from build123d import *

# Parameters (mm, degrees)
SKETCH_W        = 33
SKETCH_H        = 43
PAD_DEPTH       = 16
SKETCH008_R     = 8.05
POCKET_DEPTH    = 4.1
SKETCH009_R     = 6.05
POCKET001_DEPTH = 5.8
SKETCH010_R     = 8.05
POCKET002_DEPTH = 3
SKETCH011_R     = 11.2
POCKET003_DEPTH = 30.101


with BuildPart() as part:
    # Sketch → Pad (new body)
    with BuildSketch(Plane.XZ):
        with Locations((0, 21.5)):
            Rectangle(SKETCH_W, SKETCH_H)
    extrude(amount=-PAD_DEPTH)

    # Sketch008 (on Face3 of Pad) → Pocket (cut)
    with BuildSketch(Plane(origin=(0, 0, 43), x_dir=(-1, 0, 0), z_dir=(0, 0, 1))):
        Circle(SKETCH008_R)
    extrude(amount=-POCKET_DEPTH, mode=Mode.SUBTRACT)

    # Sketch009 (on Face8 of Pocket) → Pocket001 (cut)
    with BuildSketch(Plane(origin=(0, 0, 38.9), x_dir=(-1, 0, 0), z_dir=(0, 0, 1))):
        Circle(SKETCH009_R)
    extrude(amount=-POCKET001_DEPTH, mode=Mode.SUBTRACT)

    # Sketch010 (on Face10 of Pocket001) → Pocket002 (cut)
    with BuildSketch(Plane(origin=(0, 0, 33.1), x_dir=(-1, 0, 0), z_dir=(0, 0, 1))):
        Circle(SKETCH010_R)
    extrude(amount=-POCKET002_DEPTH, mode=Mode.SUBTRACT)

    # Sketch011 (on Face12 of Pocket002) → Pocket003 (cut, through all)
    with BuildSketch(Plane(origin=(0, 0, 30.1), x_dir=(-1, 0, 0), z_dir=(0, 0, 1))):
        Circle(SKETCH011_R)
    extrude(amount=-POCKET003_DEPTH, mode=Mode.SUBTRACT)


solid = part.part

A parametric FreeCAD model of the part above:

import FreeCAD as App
import Part
import Sketcher


def add_polygon(sketch, points):
    """Adds a closed chain of lines whose ends are joined by coincident constraints."""
    first, n = sketch.GeometryCount, len(points)
    for a, b in zip(points, points[1:] + points[:1]):
        sketch.addGeometry(Part.LineSegment(App.Vector(*a, 0), App.Vector(*b, 0)), False)
    for i in range(n):
        sketch.addConstraint(Sketcher.Constraint("Coincident", first + i, 2, first + (i + 1) % n, 1))

doc = App.newDocument("Part")
body = doc.addObject("PartDesign::Body", "Body")

sketch1 = body.newObject("Sketcher::SketchObject", "Sketch")
sketch1.AttachmentSupport = (doc.getObject("XZ_Plane"), [""])
sketch1.MapMode = "FlatFace"
add_polygon(sketch1, [(-16.5, 43), (-16.5, 0), (16.5, 0), (16.5, 43)])
sketch1.addConstraint(Sketcher.Constraint("Vertical", 0))
sketch1.addConstraint(Sketcher.Constraint("Horizontal", 1))
sketch1.addConstraint(Sketcher.Constraint("Vertical", 2))
sketch1.addConstraint(Sketcher.Constraint("Horizontal", 3))
sketch1.addConstraint(Sketcher.Constraint("Symmetric", 0, 2, 1, 2, -1, 1))
sketch1.addConstraint(Sketcher.Constraint("DistanceX", 1, 1, 1, 2, 33.0))
sketch1.addConstraint(Sketcher.Constraint("DistanceY", 0, 2, 0, 1, 43.0))
pad1 = body.newObject("PartDesign::Pad", "Pad")
pad1.Profile = sketch1
pad1.Length = 16
pad1.Reversed = True

sketch2 = body.newObject("Sketcher::SketchObject", "Sketch001")
sketch2.AttachmentSupport = (doc.getObject("XY_Plane"), [""])
sketch2.MapMode = "FlatFace"
sketch2.AttachmentOffset = App.Placement(App.Vector(0, 0, 43), App.Rotation())
sketch2.addGeometry(Part.Circle(App.Vector(0, 0, 0), App.Vector(0, 0, 1), 8.05), False)
sketch2.addConstraint(Sketcher.Constraint("Coincident", 0, 3, -1, 1))
sketch2.addConstraint(Sketcher.Constraint("Diameter", 0, 16.1))
pocket1 = body.newObject("PartDesign::Pocket", "Pocket")
pocket1.Profile = sketch2
pocket1.Length = 4.1

sketch3 = body.newObject("Sketcher::SketchObject", "Sketch002")
sketch3.AttachmentSupport = (doc.getObject("XY_Plane"), [""])
sketch3.MapMode = "FlatFace"
sketch3.AttachmentOffset = App.Placement(App.Vector(0, 0, 38.9), App.Rotation())
sketch3.addGeometry(Part.Circle(App.Vector(0, 0, 0), App.Vector(0, 0, 1), 6.05), False)
sketch3.addConstraint(Sketcher.Constraint("Coincident", 0, 3, -1, 1))
sketch3.addConstraint(Sketcher.Constraint("Diameter", 0, 12.1))
pocket2 = body.newObject("PartDesign::Pocket", "Pocket001")
pocket2.Profile = sketch3
pocket2.Length = 5.8

sketch4 = body.newObject("Sketcher::SketchObject", "Sketch003")
sketch4.AttachmentSupport = (doc.getObject("XY_Plane"), [""])
sketch4.MapMode = "FlatFace"
sketch4.AttachmentOffset = App.Placement(App.Vector(0, 0, 33.1), App.Rotation())
sketch4.addGeometry(Part.Circle(App.Vector(0, 0, 0), App.Vector(0, 0, 1), 8.05), False)
sketch4.addConstraint(Sketcher.Constraint("Coincident", 0, 3, -1, 1))
sketch4.addConstraint(Sketcher.Constraint("Diameter", 0, 16.1))
pocket3 = body.newObject("PartDesign::Pocket", "Pocket002")
pocket3.Profile = sketch4
pocket3.Length = 3

sketch5 = body.newObject("Sketcher::SketchObject", "Sketch004")
sketch5.AttachmentSupport = (doc.getObject("XY_Plane"), [""])
sketch5.MapMode = "FlatFace"
sketch5.AttachmentOffset = App.Placement(App.Vector(0, 0, 30.1), App.Rotation())
sketch5.addGeometry(Part.Circle(App.Vector(0, 0, 0), App.Vector(0, 0, 1), 11.2), False)
sketch5.addConstraint(Sketcher.Constraint("Coincident", 0, 3, -1, 1))
sketch5.addConstraint(Sketcher.Constraint("Diameter", 0, 22.4))
pocket4 = body.newObject("PartDesign::Pocket", "Pocket003")
pocket4.Profile = sketch5
pocket4.Type = "ThroughAll"

doc.recompute()
